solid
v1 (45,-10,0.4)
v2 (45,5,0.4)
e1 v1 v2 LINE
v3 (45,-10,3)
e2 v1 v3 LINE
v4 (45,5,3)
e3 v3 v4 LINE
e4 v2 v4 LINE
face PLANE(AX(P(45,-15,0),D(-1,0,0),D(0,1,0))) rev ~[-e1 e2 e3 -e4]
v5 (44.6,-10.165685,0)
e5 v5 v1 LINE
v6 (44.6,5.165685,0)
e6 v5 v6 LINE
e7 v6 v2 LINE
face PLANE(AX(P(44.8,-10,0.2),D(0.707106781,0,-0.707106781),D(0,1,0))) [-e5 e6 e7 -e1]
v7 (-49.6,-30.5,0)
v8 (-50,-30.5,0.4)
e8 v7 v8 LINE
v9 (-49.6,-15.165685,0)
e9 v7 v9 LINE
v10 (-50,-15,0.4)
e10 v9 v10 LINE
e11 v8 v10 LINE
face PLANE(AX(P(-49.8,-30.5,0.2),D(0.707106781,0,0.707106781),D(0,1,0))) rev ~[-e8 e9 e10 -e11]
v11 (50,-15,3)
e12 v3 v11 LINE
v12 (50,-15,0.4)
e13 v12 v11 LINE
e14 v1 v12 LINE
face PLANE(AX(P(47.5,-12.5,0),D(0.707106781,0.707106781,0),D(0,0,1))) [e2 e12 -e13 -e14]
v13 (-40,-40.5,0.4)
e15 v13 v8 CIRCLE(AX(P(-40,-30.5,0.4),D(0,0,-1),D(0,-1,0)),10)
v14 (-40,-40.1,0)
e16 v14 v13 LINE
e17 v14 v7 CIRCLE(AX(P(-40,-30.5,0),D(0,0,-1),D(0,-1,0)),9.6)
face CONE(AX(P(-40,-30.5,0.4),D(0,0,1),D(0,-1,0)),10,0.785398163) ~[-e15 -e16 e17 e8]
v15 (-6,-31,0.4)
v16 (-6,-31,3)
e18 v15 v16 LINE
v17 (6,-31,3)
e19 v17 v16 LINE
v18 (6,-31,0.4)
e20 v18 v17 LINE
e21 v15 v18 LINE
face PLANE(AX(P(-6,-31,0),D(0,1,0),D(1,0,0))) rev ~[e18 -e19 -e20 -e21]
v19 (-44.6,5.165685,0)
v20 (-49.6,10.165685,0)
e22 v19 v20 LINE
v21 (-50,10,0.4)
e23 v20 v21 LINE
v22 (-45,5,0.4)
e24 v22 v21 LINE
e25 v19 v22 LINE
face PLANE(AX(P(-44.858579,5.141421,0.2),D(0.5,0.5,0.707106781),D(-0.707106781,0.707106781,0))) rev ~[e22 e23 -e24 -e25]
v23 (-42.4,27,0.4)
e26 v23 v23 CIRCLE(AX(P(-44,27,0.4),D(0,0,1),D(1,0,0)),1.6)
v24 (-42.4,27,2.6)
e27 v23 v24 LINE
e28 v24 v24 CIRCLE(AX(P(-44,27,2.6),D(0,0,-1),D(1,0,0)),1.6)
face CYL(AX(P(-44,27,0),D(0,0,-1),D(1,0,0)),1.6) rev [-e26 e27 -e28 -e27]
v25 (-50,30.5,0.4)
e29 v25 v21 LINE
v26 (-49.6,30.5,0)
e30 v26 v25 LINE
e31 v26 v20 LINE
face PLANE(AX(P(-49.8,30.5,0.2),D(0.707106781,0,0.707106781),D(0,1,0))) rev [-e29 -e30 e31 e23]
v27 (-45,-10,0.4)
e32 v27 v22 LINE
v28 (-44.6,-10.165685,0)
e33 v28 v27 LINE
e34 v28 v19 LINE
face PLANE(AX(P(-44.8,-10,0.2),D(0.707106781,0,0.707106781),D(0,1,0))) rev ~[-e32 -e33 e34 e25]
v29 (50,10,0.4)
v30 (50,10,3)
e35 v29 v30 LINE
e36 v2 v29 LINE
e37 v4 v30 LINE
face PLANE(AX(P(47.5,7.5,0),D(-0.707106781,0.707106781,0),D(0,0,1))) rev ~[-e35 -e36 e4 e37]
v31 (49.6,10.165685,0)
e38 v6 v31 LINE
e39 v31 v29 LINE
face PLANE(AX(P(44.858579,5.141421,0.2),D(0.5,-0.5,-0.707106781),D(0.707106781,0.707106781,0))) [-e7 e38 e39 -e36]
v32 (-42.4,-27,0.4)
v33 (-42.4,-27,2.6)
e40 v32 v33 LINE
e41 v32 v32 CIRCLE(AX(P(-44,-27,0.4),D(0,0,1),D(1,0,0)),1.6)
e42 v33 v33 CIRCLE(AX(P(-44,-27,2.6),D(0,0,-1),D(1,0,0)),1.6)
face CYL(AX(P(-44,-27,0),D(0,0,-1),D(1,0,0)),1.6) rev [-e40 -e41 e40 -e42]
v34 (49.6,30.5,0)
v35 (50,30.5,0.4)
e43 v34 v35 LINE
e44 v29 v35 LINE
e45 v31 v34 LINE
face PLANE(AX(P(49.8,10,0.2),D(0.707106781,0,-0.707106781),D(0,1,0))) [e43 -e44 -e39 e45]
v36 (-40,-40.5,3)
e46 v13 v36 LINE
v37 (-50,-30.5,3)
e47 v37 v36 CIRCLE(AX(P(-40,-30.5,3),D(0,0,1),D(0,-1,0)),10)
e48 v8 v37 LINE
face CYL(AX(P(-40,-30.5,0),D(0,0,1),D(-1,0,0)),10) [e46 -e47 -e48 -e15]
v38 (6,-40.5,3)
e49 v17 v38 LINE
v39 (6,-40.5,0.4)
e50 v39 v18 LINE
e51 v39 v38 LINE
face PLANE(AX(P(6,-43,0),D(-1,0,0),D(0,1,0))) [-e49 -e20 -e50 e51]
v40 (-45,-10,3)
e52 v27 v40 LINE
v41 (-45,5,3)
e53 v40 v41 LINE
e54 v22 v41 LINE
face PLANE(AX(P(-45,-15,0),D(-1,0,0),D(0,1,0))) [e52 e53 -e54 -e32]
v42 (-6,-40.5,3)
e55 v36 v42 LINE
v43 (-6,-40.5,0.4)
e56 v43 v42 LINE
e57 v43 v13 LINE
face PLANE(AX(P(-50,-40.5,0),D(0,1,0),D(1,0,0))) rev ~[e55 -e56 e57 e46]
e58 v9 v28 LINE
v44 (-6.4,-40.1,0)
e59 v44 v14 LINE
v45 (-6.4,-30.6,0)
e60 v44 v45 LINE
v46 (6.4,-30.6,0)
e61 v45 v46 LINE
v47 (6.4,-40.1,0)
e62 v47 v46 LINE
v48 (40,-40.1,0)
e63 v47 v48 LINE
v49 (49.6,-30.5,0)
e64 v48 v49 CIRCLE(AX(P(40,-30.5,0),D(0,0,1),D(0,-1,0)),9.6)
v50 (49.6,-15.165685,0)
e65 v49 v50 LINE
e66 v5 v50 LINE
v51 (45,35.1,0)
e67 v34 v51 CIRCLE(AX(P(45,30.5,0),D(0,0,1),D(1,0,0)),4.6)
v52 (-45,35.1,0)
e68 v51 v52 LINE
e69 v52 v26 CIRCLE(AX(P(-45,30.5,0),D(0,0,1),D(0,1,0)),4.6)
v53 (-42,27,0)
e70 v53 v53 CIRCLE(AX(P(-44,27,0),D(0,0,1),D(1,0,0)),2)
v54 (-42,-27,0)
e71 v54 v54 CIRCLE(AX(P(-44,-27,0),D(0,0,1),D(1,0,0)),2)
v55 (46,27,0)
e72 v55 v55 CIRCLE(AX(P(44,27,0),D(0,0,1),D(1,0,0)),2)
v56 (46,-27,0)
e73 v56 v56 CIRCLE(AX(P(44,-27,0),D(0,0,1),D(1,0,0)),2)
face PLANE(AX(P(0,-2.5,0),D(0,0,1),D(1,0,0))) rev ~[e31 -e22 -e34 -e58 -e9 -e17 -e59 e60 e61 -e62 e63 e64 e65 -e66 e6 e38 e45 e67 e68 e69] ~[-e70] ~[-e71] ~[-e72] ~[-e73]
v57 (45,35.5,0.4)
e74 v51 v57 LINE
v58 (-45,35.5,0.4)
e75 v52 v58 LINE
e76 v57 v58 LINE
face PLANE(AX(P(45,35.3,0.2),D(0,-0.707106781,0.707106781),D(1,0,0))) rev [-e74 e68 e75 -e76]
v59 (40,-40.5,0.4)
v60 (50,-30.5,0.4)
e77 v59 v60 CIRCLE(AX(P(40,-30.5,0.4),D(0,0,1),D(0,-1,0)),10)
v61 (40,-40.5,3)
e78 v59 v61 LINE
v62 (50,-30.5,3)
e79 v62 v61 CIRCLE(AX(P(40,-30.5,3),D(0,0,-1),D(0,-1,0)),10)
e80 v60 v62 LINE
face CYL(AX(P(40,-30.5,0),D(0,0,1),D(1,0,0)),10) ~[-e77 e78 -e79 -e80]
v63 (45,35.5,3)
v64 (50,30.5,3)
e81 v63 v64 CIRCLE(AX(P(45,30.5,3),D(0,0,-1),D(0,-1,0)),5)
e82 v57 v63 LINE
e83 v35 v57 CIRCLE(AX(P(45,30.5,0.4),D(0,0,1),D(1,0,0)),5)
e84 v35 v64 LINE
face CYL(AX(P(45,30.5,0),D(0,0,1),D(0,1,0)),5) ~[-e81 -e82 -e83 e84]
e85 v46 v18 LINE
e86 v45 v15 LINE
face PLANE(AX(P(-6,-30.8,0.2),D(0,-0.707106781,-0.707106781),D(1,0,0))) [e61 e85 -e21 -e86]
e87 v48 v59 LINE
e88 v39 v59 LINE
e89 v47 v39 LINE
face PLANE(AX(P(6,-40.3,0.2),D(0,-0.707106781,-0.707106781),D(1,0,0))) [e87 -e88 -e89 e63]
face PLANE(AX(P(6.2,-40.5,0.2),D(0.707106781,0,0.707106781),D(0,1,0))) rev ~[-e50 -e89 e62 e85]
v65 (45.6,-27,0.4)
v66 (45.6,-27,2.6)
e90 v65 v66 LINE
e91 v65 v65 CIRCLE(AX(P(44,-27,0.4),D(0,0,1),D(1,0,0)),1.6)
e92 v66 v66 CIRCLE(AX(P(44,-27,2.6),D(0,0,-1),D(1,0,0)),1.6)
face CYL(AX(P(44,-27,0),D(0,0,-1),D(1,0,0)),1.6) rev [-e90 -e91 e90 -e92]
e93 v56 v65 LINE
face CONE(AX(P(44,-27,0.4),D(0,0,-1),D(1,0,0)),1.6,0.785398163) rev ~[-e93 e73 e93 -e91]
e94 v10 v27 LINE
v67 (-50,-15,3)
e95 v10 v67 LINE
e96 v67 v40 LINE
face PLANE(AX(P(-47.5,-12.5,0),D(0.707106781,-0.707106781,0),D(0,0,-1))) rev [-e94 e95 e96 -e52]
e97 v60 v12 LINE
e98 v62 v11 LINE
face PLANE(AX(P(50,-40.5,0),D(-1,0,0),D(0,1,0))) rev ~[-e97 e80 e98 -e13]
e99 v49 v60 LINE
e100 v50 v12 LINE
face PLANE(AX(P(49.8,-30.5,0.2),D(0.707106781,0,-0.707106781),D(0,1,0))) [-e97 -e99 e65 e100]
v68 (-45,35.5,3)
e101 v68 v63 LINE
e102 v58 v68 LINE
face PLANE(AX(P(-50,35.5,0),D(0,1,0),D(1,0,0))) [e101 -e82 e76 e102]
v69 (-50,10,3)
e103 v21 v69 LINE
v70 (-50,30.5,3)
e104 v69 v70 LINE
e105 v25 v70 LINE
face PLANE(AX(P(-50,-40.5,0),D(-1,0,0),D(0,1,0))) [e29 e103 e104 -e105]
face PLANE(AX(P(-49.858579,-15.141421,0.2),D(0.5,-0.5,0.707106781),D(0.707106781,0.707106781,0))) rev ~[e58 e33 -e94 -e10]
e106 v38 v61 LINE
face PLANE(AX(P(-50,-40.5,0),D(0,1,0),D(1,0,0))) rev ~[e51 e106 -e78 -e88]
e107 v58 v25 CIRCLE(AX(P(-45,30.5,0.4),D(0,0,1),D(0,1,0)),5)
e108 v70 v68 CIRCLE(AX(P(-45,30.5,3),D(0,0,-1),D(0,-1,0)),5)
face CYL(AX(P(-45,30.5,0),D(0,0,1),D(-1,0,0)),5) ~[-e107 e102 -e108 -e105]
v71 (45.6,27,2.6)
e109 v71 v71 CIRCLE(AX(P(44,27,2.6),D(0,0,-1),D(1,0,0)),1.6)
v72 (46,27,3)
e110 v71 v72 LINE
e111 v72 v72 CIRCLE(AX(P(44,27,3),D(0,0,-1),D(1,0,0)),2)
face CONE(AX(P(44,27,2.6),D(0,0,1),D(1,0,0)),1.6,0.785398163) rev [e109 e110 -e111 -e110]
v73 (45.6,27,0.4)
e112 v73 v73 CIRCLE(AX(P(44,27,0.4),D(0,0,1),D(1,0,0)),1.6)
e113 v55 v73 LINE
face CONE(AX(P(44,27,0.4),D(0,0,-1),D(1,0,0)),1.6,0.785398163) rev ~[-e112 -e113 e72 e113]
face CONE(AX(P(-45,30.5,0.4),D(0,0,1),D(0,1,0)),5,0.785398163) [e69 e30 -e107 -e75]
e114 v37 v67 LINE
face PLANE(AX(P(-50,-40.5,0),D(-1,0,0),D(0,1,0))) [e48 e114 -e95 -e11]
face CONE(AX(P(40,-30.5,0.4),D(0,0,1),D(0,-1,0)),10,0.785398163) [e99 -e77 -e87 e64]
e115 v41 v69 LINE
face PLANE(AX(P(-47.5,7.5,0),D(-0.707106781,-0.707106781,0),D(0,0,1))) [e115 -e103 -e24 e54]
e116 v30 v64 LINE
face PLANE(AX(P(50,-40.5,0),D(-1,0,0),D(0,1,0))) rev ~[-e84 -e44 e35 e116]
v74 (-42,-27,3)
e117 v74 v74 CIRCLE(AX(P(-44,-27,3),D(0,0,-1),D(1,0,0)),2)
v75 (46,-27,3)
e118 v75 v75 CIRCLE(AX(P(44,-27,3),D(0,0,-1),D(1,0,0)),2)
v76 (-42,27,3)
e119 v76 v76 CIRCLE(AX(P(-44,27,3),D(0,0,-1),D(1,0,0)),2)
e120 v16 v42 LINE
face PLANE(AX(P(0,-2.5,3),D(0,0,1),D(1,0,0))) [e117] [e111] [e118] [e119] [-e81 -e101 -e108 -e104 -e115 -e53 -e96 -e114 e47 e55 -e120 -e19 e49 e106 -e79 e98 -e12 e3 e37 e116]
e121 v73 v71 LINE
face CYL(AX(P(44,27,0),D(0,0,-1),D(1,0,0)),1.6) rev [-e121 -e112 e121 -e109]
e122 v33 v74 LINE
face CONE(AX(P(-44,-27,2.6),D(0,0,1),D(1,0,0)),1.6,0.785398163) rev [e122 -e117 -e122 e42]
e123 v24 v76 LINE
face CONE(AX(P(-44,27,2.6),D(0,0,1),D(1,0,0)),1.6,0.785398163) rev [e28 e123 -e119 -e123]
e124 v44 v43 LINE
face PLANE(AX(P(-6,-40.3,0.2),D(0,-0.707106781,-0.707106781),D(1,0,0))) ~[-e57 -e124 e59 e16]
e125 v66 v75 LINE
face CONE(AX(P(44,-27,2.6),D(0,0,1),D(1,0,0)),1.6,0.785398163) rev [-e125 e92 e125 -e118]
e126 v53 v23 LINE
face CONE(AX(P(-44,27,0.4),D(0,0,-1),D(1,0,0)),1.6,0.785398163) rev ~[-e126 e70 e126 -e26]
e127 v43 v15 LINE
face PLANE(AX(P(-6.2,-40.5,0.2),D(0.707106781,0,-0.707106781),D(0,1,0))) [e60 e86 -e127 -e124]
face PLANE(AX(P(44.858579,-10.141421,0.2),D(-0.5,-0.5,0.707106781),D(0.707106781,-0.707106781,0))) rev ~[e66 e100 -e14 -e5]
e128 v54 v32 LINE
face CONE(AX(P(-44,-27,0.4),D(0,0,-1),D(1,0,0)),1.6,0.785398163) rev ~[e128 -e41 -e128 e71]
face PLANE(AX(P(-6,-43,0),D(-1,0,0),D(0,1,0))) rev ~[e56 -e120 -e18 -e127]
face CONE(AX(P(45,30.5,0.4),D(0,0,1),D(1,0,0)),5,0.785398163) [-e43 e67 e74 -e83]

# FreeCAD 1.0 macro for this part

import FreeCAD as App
import Part
import Sketcher

V = App.Vector
Q = App.Units.Quantity


def edges_at(feature, points):
    """Names of the edges that pass closest to the given points."""
    edges = feature.Shape.Edges
    near = lambda p: min(range(len(edges)), key=lambda i: edges[i].distToShape(Part.Vertex(*p))[0])
    return sorted({f"Edge{near(p) + 1}" for p in points})


def add_polygon(sketch, points):
    """Adds a closed chain of lines whose ends are joined by coincident constraints."""
    first, n = sketch.GeometryCount, len(points)
    for a, b in zip(points, points[1:] + points[:1]):
        sketch.addGeometry(Part.LineSegment(App.Vector(*a, 0), App.Vector(*b, 0)), False)
    for i in range(n):
        sketch.addConstraint(Sketcher.Constraint("Coincident", first + i, 2, first + (i + 1) % n, 1))

doc = App.newDocument("Part")
body = doc.addObject("PartDesign::Body", "Body")

sketch1 = body.newObject("Sketcher::SketchObject", "Sketch")
sketch1.AttachmentSupport = (doc.getObject("XY_Plane"), [""])
sketch1.MapMode = "FlatFace"
add_polygon(sketch1, [(45, 10), (45, -15), (55, -15), (55, 10)])
sketch1.addConstraint(Sketcher.Constraint("Vertical", 0))
sketch1.addConstraint(Sketcher.Constraint("Horizontal", 1))
sketch1.addConstraint(Sketcher.Constraint("Vertical", 2))
sketch1.addConstraint(Sketcher.Constraint("Horizontal", 3))
sketch1.addConstraint(Sketcher.Constraint("DistanceX", 1, 1, 1, 2, Q("10 mm")))
sketch1.addConstraint(Sketcher.Constraint("DistanceY", 0, 2, 0, 1, Q("25 mm")))
sketch1.addConstraint(Sketcher.Constraint("DistanceX", -1, 1, 0, 2, Q("45 mm")))
sketch1.addConstraint(Sketcher.Constraint("DistanceY", 0, 2, -1, 1, Q("15 mm")))
pad1 = body.newObject("PartDesign::Pad", "Pad")
pad1.Profile = sketch1
pad1.Length = 3
body2 = doc.addObject("PartDesign::Body", "Body001")
body2.AllowCompound = True

sketch2 = body2.newObject("Sketcher::SketchObject", "Sketch001")
sketch2.AttachmentSupport = (doc.getObject("XY_Plane001"), [""])
sketch2.MapMode = "FlatFace"
add_polygon(sketch2, [(-55, 10), (-55, -15), (-45, -15), (-45, 10)])
sketch2.addConstraint(Sketcher.Constraint("Vertical", 0))
sketch2.addConstraint(Sketcher.Constraint("Horizontal", 1))
sketch2.addConstraint(Sketcher.Constraint("Vertical", 2))
sketch2.addConstraint(Sketcher.Constraint("Horizontal", 3))
sketch2.addConstraint(Sketcher.Constraint("DistanceX", 1, 1, 1, 2, Q("10 mm")))
sketch2.addConstraint(Sketcher.Constraint("DistanceY", 0, 2, 0, 1, Q("25 mm")))
sketch2.addConstraint(Sketcher.Constraint("DistanceX", 0, 2, -1, 1, Q("55 mm")))
sketch2.addConstraint(Sketcher.Constraint("DistanceY", 0, 2, -1, 1, Q("15 mm")))
pad2 = body2.newObject("PartDesign::Pad", "Pad001")
pad2.Profile = sketch2
pad2.Length = 3
doc.recompute()

boolean = body2.newObject("PartDesign::Boolean", "Boolean")
boolean.Type = "Fuse"
boolean.addObjects([body])
doc.recompute()

chamfer = body2.newObject("PartDesign::Chamfer", "Chamfer")
chamfer.Base = (boolean, edges_at(boolean, [
    (-45, -15, 1.5),
    (-45, 10, 1.5),
    (45, -15, 1.5),
    (45, 10, 1.5),
]))
chamfer.Size = 5
body3 = doc.addObject("PartDesign::Body", "Body002")

sketch3 = body3.newObject("Sketcher::SketchObject", "Sketch002")
sketch3.AttachmentSupport = (doc.getObject("XY_Plane002"), [""])
sketch3.MapMode = "FlatFace"
sketch3.addGeometry(Part.Circle(V(44, 27, 0), V(0, 0, 1), 1.6), False)
sketch3.addConstraint(Sketcher.Constraint("Diameter", 0, Q("3.2 mm")))
sketch3.addConstraint(Sketcher.Constraint("DistanceX", -1, 1, 0, 3, Q("44 mm")))
sketch3.addConstraint(Sketcher.Constraint("DistanceY", -1, 1, 0, 3, Q("27 mm")))
pad3 = body3.newObject("PartDesign::Pad", "Pad002")
pad3.Profile = sketch3
pad3.Length = 10
body4 = doc.addObject("PartDesign::Body", "Body003")

sketch4 = body4.newObject("Sketcher::SketchObject", "Sketch003")
sketch4.AttachmentSupport = (doc.getObject("XY_Plane003"), [""])
sketch4.MapMode = "FlatFace"
sketch4.addGeometry(Part.Circle(V(44, -27, 0), V(0, 0, 1), 1.6), False)
sketch4.addConstraint(Sketcher.Constraint("Diameter", 0, Q("3.2 mm")))
sketch4.addConstraint(Sketcher.Constraint("DistanceX", -1, 1, 0, 3, Q("44 mm")))
sketch4.addConstraint(Sketcher.Constraint("DistanceY", 0, 3, -1, 1, Q("27 mm")))
pad4 = body4.newObject("PartDesign::Pad", "Pad003")
pad4.Profile = sketch4
pad4.Length = 10
body5 = doc.addObject("PartDesign::Body", "Body004")

sketch5 = body5.newObject("Sketcher::SketchObject", "Sketch004")
sketch5.AttachmentSupport = (doc.getObject("XY_Plane004"), [""])
sketch5.MapMode = "FlatFace"
sketch5.addGeometry(Part.Circle(V(-44, -27, 0), V(0, 0, 1), 1.6), False)
sketch5.addConstraint(Sketcher.Constraint("Diameter", 0, Q("3.2 mm")))
sketch5.addConstraint(Sketcher.Constraint("DistanceX", 0, 3, -1, 1, Q("44 mm")))
sketch5.addConstraint(Sketcher.Constraint("DistanceY", 0, 3, -1, 1, Q("27 mm")))
pad5 = body5.newObject("PartDesign::Pad", "Pad004")
pad5.Profile = sketch5
pad5.Length = 10
body6 = doc.addObject("PartDesign::Body", "Body005")
body6.AllowCompound = True

sketch6 = body6.newObject("Sketcher::SketchObject", "Sketch005")
sketch6.AttachmentSupport = (doc.getObject("XY_Plane005"), [""])
sketch6.MapMode = "FlatFace"
sketch6.addGeometry(Part.Circle(V(-44, 27, 0), V(0, 0, 1), 1.6), False)
sketch6.addConstraint(Sketcher.Constraint("Diameter", 0, Q("3.2 mm")))
sketch6.addConstraint(Sketcher.Constraint("DistanceX", 0, 3, -1, 1, Q("44 mm")))
sketch6.addConstraint(Sketcher.Constraint("DistanceY", -1, 1, 0, 3, Q("27 mm")))
pad6 = body6.newObject("PartDesign::Pad", "Pad005")
pad6.Profile = sketch6
pad6.Length = 10
doc.recompute()

boolean2 = body6.newObject("PartDesign::Boolean", "Boolean001")
boolean2.Type = "Fuse"
boolean2.addObjects([body3])
doc.recompute()

boolean3 = body6.newObject("PartDesign::Boolean", "Boolean002")
boolean3.Type = "Fuse"
boolean3.addObjects([body4])
doc.recompute()

boolean4 = body6.newObject("PartDesign::Boolean", "Boolean003")
boolean4.Type = "Fuse"
boolean4.addObjects([body5])
body7 = doc.addObject("PartDesign::Body", "Body006")

sketch7 = body7.newObject("Sketcher::SketchObject", "Sketch006")
sketch7.AttachmentSupport = (doc.getObject("XY_Plane006"), [""])
sketch7.MapMode = "FlatFace"
add_polygon(sketch7, [(-6, -31), (-6, -43), (6, -43), (6, -31)])
sketch7.addConstraint(Sketcher.Constraint("Vertical", 0))
sketch7.addConstraint(Sketcher.Constraint("Horizontal", 1))
sketch7.addConstraint(Sketcher.Constraint("Vertical", 2))
sketch7.addConstraint(Sketcher.Constraint("Horizontal", 3))
sketch7.addConstraint(Sketcher.Constraint("Equal", 3, 0))
sketch7.addConstraint(Sketcher.Constraint("DistanceX", 1, 1, 1, 2, Q("12 mm")))
sketch7.addConstraint(Sketcher.Constraint("DistanceX", 0, 2, -1, 1, Q("6 mm")))
sketch7.addConstraint(Sketcher.Constraint("DistanceY", 0, 2, -1, 1, Q("43 mm")))
pad7 = body7.newObject("PartDesign::Pad", "Pad006")
pad7.Profile = sketch7
pad7.Length = 10
body8 = doc.addObject("PartDesign::Body", "Body007")

sketch8 = body8.newObject("Sketcher::SketchObject", "Sketch007")
sketch8.AttachmentSupport = (doc.getObject("XY_Plane007"), [""])
sketch8.MapMode = "FlatFace"
add_polygon(sketch8, [(-50, 36), (-50, -40), (50, -40), (50, 36)])
sketch8.addConstraint(Sketcher.Constraint("Vertical", 0))
sketch8.addConstraint(Sketcher.Constraint("Horizontal", 1))
sketch8.addConstraint(Sketcher.Constraint("Vertical", 2))
sketch8.addConstraint(Sketcher.Constraint("Horizontal", 3))
sketch8.addConstraint(Sketcher.Constraint("DistanceX", 1, 1, 1, 2, Q("100 mm")))
sketch8.addConstraint(Sketcher.Constraint("DistanceY", 0, 2, 0, 1, Q("76 mm")))
sketch8.addConstraint(Sketcher.Constraint("DistanceX", 0, 2, -1, 1, Q("50 mm")))
sketch8.addConstraint(Sketcher.Constraint("DistanceY", 0, 2, -1, 1, Q("40.5 mm")))
pad8 = body8.newObject("PartDesign::Pad", "Pad007")
pad8.Profile = sketch8
pad8.Length = 3
doc.recompute()

boolean5 = body8.newObject("PartDesign::Boolean", "Boolean004")
boolean5.Type = "Cut"
boolean5.addObjects([body7])
doc.recompute()

boolean6 = body8.newObject("PartDesign::Boolean", "Boolean005")
boolean6.Type = "Cut"
boolean6.addObjects([body6])
doc.recompute()

boolean7 = body8.newObject("PartDesign::Boolean", "Boolean006")
boolean7.Type = "Cut"
boolean7.addObjects([body2])
doc.recompute()

fillet = body8.newObject("PartDesign::Fillet", "Fillet")
fillet.Base = (boolean7, edges_at(boolean7, [(-50, -40.5, 1.5), (50, -40.5, 1.5)]))
fillet.Radius = 10
doc.recompute()

fillet2 = body8.newObject("PartDesign::Fillet", "Fillet001")
fillet2.Base = (fillet, edges_at(fillet, [(50, 35.5, 1.5), (-50, 35.5, 1.5)]))
fillet2.Radius = 5
doc.recompute()

chamfer2 = body8.newObject("PartDesign::Chamfer", "Chamfer001")
chamfer2.Base = (fillet2, edges_at(fillet2, [
    (50, 20.25, 0),
    (48.536, 34.036, 0),
    (47.5, 7.5, 0),
    (0, 35.5, 0),
    (45, -2.5, 0),
    (-48.536, 34.036, 0),
    (47.5, -12.5, 0),
    (-50, 20.25, 0),
    (50, -22.75, 0),
    (-47.5, 7.5, 0),
    (47.071, -37.571, 0),
    (-45, -2.5, 0),
    (23, -40.5, 0),
    (-47.5, -12.5, 0),
    (6, -35.75, 0),
    (-50, -22.75, 0),
    (0, -31, 0),
    (-47.071, -37.571, 0),
    (-6, -35.75, 0),
    (-23, -40.5, 0),
    (-45.6, -27, 0),
    (42.4, -27, 0),
    (-45.6, 27, 0),
    (42.4, 27, 0),
]))
chamfer2.Size = 0.4
doc.recompute()

chamfer3 = body8.newObject("PartDesign::Chamfer", "Chamfer002")
chamfer3.Base = (chamfer2, edges_at(chamfer2, [
    (-45.6, -27, 3),
    (42.4, -27, 3),
    (-45.6, 27, 3),
    (42.4, 27, 3),
]))
chamfer3.Size = 0.4

doc.recompute()
